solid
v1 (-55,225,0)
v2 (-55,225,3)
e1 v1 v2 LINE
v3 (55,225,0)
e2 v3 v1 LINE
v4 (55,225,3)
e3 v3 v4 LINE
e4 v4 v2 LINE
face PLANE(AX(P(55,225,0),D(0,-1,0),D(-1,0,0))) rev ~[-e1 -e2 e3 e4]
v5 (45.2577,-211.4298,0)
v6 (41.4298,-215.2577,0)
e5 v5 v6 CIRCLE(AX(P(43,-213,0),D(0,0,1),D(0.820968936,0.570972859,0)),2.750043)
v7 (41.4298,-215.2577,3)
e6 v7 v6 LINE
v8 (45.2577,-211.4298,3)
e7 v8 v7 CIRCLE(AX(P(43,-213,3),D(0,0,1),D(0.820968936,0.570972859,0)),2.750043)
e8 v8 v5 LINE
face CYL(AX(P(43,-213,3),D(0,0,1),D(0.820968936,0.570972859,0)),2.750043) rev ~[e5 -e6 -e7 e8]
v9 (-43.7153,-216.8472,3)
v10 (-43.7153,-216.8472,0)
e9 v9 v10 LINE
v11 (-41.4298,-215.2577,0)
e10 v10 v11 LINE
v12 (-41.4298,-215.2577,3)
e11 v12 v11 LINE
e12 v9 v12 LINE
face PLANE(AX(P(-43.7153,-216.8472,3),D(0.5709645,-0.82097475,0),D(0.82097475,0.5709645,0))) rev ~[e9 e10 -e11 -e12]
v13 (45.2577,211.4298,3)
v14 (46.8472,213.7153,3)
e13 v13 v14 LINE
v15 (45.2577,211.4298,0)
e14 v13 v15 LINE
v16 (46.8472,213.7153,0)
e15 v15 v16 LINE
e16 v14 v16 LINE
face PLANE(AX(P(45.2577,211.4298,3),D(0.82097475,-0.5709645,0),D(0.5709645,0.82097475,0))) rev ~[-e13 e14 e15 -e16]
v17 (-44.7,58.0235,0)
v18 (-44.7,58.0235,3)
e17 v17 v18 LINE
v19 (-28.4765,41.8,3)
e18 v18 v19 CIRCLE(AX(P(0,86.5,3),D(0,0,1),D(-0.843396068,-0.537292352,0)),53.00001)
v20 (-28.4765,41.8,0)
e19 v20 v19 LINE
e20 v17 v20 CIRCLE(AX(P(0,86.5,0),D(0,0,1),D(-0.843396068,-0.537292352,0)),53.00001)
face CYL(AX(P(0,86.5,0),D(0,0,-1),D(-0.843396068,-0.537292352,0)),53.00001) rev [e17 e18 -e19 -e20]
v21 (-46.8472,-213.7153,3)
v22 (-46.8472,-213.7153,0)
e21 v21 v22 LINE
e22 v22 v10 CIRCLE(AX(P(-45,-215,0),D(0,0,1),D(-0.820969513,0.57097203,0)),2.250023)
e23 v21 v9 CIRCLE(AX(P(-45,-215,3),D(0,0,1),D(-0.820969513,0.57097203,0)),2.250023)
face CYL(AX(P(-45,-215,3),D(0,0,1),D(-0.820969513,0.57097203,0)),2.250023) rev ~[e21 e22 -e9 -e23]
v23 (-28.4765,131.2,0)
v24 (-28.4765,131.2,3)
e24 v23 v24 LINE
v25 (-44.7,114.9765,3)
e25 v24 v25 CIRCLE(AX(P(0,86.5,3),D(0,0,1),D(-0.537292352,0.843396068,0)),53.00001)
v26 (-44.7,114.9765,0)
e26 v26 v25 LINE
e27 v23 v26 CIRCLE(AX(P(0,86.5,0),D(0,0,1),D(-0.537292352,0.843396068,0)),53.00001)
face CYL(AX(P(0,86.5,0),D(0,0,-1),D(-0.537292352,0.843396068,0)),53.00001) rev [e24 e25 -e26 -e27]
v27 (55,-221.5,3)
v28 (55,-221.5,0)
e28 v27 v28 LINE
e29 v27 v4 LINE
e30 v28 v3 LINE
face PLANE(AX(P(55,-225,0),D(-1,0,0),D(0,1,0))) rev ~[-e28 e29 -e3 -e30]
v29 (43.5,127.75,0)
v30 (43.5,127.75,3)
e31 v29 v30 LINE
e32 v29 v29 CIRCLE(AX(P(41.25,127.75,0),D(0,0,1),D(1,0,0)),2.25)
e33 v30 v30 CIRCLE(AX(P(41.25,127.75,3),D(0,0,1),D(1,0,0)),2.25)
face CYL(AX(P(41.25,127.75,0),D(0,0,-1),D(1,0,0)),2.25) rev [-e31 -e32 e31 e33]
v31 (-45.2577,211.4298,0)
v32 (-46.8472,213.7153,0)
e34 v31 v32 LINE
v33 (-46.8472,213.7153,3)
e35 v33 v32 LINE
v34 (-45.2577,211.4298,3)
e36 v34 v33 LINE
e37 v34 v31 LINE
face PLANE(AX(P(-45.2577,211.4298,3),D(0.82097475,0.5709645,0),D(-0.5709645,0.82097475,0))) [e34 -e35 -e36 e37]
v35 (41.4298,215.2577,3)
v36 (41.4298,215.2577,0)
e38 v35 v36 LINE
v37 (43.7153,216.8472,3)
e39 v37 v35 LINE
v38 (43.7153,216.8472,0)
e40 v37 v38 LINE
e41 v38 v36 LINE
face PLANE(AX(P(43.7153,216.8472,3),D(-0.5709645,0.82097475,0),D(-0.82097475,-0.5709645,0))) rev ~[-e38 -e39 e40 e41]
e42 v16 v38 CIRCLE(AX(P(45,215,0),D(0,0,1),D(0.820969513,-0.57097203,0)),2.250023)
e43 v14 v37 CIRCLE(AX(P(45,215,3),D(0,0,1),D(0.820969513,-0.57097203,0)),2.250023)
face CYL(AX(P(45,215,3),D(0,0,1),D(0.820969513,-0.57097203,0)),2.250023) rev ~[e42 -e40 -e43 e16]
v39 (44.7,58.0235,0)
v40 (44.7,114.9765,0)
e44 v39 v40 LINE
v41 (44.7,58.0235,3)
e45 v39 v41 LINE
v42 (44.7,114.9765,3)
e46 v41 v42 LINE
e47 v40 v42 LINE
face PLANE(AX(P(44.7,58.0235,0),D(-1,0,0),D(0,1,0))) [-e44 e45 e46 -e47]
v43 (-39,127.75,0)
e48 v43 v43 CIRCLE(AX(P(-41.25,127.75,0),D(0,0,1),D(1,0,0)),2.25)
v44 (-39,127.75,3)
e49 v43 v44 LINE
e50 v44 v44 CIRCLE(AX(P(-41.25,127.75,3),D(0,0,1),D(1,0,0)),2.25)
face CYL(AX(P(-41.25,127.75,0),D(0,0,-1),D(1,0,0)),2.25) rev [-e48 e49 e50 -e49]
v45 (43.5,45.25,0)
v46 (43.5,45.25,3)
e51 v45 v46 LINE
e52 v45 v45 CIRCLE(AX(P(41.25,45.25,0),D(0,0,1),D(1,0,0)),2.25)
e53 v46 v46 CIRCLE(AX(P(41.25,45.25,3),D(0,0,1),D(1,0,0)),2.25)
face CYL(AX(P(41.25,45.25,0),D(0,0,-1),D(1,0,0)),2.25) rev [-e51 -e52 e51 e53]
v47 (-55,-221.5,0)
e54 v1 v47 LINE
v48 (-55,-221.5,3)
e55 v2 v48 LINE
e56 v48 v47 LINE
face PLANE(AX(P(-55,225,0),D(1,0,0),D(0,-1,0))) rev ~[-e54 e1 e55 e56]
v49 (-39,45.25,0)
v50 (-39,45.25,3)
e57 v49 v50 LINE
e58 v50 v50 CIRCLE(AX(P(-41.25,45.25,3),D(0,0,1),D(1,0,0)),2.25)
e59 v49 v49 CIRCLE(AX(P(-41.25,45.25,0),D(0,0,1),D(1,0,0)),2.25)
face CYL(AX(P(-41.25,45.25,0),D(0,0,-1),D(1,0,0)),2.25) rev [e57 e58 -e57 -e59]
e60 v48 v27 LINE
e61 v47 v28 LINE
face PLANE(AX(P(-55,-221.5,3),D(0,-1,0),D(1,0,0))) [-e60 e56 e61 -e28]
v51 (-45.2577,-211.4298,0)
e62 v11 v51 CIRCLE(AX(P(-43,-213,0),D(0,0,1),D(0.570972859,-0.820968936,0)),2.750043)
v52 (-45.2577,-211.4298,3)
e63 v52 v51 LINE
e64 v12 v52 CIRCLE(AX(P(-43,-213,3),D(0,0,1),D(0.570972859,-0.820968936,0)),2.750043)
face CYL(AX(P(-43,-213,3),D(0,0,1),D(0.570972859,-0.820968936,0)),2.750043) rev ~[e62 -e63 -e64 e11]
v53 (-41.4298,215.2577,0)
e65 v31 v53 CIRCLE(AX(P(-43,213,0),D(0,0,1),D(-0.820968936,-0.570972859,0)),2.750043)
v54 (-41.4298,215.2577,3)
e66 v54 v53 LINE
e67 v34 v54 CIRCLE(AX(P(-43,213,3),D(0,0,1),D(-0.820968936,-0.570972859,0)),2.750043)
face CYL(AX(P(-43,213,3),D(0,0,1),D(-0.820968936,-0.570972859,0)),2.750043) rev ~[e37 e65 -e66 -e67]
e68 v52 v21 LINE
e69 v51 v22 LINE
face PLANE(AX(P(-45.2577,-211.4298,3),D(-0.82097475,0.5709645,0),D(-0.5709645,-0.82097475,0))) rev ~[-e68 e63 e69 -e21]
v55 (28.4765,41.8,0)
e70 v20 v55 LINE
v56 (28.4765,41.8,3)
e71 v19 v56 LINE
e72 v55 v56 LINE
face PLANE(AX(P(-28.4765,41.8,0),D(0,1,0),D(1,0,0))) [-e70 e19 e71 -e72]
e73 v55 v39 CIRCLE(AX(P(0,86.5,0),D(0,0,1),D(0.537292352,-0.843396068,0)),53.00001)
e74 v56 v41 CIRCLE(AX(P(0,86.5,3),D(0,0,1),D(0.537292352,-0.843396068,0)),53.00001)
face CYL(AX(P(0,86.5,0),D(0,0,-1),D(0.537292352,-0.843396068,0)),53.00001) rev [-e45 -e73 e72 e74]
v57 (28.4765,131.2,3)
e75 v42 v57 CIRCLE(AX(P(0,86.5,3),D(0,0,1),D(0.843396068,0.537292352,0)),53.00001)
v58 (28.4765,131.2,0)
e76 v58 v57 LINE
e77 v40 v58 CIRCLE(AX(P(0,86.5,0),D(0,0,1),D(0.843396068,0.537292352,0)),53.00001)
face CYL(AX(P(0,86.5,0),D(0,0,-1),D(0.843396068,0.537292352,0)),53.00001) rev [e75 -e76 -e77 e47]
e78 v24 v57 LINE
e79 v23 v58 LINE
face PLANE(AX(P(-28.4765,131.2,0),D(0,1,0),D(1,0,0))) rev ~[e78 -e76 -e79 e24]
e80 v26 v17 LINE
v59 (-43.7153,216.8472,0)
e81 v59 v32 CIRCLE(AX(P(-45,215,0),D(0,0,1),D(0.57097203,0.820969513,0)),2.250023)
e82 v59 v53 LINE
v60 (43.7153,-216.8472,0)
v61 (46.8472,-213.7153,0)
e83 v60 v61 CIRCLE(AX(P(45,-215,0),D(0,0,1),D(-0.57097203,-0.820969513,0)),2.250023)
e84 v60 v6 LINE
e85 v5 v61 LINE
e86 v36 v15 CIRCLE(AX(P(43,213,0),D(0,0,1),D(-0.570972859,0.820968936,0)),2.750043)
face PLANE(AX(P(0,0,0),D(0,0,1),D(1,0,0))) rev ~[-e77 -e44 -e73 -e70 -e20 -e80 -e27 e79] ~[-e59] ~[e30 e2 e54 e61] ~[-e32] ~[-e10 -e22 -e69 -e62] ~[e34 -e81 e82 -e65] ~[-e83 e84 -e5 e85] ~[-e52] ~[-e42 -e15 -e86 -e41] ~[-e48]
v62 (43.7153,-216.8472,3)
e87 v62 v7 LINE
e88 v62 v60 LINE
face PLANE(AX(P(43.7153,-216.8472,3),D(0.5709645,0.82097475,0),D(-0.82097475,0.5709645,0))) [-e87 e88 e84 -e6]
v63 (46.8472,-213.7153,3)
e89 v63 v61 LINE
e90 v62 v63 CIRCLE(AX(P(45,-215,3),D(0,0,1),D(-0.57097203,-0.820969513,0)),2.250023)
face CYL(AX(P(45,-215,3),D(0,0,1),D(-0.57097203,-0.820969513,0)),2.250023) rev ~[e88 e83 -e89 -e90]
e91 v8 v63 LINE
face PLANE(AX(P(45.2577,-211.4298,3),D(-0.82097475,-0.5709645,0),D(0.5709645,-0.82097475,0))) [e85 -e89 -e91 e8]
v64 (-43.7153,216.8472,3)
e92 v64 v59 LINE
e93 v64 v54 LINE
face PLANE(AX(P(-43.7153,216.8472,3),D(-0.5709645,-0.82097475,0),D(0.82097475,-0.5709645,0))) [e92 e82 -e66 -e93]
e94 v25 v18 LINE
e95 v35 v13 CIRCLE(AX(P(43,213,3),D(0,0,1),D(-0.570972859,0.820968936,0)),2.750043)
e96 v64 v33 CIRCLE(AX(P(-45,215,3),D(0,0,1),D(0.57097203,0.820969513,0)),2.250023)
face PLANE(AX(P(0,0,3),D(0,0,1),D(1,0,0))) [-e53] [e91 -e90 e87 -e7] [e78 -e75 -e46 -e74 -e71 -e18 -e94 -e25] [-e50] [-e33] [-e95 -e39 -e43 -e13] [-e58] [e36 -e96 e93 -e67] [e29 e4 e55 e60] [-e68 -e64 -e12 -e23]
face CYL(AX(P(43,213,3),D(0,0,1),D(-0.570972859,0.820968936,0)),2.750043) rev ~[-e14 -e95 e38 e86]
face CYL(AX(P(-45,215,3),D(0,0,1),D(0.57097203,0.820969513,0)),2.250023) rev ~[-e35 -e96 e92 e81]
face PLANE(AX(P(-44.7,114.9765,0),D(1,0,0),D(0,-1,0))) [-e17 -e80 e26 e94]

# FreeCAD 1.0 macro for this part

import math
import FreeCAD as App
import Part
import Sketcher

V = App.Vector

doc = App.newDocument("Part")
body = doc.addObject("PartDesign::Body", "Body")

# Sketch on XY plane
sketch1 = body.newObject("Sketcher::SketchObject", "Sketch")
sketch1.AttachmentSupport = (doc.getObject("XY_Plane"), [""])
sketch1.MapMode = "FlatFace"
sketch1.addGeometry(Part.LineSegment(V(-55, 225, 0), V(-55, -225, 0)), False)
sketch1.addGeometry(Part.LineSegment(V(-55, -225, 0), V(55, -225, 0)), False)
sketch1.addGeometry(Part.LineSegment(V(55, -225, 0), V(55, 225, 0)), False)
sketch1.addGeometry(Part.LineSegment(V(55, 225, 0), V(-55, 225, 0)), False)
sketch1.addGeometry(Part.Circle(V(-45, -215, 0), V(0, 0, 1), 2.25), False)
sketch1.addGeometry(Part.Circle(V(45, -215, 0), V(0, 0, 1), 2.25), False)
sketch1.addGeometry(Part.Circle(V(-41.25, 45.25, 0), V(0, 0, 1), 2.25), False)
sketch1.addGeometry(Part.Circle(V(-41.25, 127.75, 0), V(0, 0, 1), 2.25), False)
sketch1.addGeometry(Part.Circle(V(-45, 215, 0), V(0, 0, 1), 2.25), False)
sketch1.addGeometry(Part.ArcOfCircle(Part.Circle(V(0, 86.5, 0), V(0, 0, 1), 53.00001), math.radians(122.499507), math.radians(147.500493)), False)
sketch1.addGeometry(Part.LineSegment(V(-28.4765, 131.2, 0), V(28.4765, 131.2, 0)), False)
sketch1.addGeometry(Part.ArcOfCircle(Part.Circle(V(0, 86.5, 0), V(0, 0, 1), 53.00001), math.radians(32.499507), math.radians(57.500493)), False)
sketch1.addGeometry(Part.LineSegment(V(44.7, 114.9765, 0), V(44.7, 58.0235, 0)), False)
sketch1.addGeometry(Part.ArcOfCircle(Part.Circle(V(0, 86.5, 0), V(0, 0, 1), 53.00001), math.radians(-57.500493), math.radians(-32.499507)), False)
sketch1.addGeometry(Part.LineSegment(V(28.4765, 41.8, 0), V(-28.4765, 41.8, 0)), False)
sketch1.addGeometry(Part.ArcOfCircle(Part.Circle(V(0, 86.5, 0), V(0, 0, 1), 53.00001), math.radians(-147.500493), math.radians(-122.499507)), False)
sketch1.addGeometry(Part.LineSegment(V(-44.7, 58.0235, 0), V(-44.7, 114.9765, 0)), False)
sketch1.addGeometry(Part.Circle(V(41.25, 45.25, 0), V(0, 0, 1), 2.25), False)
sketch1.addGeometry(Part.Circle(V(41.25, 127.75, 0), V(0, 0, 1), 2.25), False)
sketch1.addGeometry(Part.Circle(V(45, 215, 0), V(0, 0, 1), 2.25), False)
sketch1.addConstraint(Sketcher.Constraint("Coincident", 0, 2, 1, 1))
sketch1.addConstraint(Sketcher.Constraint("Coincident", 1, 2, 2, 1))
sketch1.addConstraint(Sketcher.Constraint("Coincident", 2, 2, 3, 1))
sketch1.addConstraint(Sketcher.Constraint("Coincident", 3, 2, 0, 1))
sketch1.addConstraint(Sketcher.Constraint("Coincident", 9, 1, 10, 1))
sketch1.addConstraint(Sketcher.Constraint("Coincident", 10, 2, 11, 2))
sketch1.addConstraint(Sketcher.Constraint("Coincident", 11, 1, 12, 1))
sketch1.addConstraint(Sketcher.Constraint("Coincident", 12, 2, 13, 2))
sketch1.addConstraint(Sketcher.Constraint("Coincident", 13, 1, 14, 1))
sketch1.addConstraint(Sketcher.Constraint("Coincident", 14, 2, 15, 2))
sketch1.addConstraint(Sketcher.Constraint("Coincident", 15, 1, 16, 1))
sketch1.addConstraint(Sketcher.Constraint("Coincident", 16, 2, 9, 2))
sketch1.addConstraint(Sketcher.Constraint("Vertical", 0))
sketch1.addConstraint(Sketcher.Constraint("Horizontal", 1))
sketch1.addConstraint(Sketcher.Constraint("Vertical", 2))
sketch1.addConstraint(Sketcher.Constraint("Horizontal", 3))
sketch1.addConstraint(Sketcher.Constraint("Horizontal", 10))
sketch1.addConstraint(Sketcher.Constraint("Vertical", 12))
sketch1.addConstraint(Sketcher.Constraint("Horizontal", 14))
sketch1.addConstraint(Sketcher.Constraint("Vertical", 16))
sketch1.addConstraint(Sketcher.Constraint("Coincident", 11, 3, 9, 3))
sketch1.addConstraint(Sketcher.Constraint("Coincident", 13, 3, 9, 3))
sketch1.addConstraint(Sketcher.Constraint("Coincident", 15, 3, 9, 3))
sketch1.addConstraint(Sketcher.Constraint("Equal", 4, 5))
sketch1.addConstraint(Sketcher.Constraint("Equal", 5, 6))
sketch1.addConstraint(Sketcher.Constraint("Equal", 6, 7))
sketch1.addConstraint(Sketcher.Constraint("Equal", 7, 8))
sketch1.addConstraint(Sketcher.Constraint("Equal", 9, 11))
sketch1.addConstraint(Sketcher.Constraint("Equal", 11, 13))
sketch1.addConstraint(Sketcher.Constraint("Equal", 13, 15))
sketch1.addConstraint(Sketcher.Constraint("Equal", 8, 17))
sketch1.addConstraint(Sketcher.Constraint("Equal", 17, 18))
sketch1.addConstraint(Sketcher.Constraint("Equal", 18, 19))
sketch1.addConstraint(Sketcher.Constraint("Symmetric", 5, 3, 8, 3, -1, 1))
sketch1.addConstraint(Sketcher.Constraint("Symmetric", 4, 3, 19, 3, -1, 1))
sketch1.addConstraint(Sketcher.Constraint("Symmetric", 0, 2, 2, 2, -1, 1))
sketch1.addConstraint(Sketcher.Constraint("Symmetric", 4, 3, 5, 3, -2))
sketch1.addConstraint(Sketcher.Constraint("Symmetric", 6, 3, 17, 3, -2))
sketch1.addConstraint(Sketcher.Constraint("Symmetric", 7, 3, 18, 3, -2))
sketch1.addConstraint(Sketcher.Constraint("Symmetric", 12, 2, 15, 1, -2))
sketch1.addConstraint(Sketcher.Constraint("Vertical", 6, 3, 7, 3))
sketch1.addConstraint(Sketcher.Constraint("Vertical", 10, 2, 13, 1))
sketch1.addConstraint(Sketcher.Constraint("Equal", 14, 12))
sketch1.addConstraint(Sketcher.Constraint("Radius", 9, 53.0))
sketch1.addConstraint(Sketcher.Constraint("Diameter", 4, 4.5))
sketch1.addConstraint(Sketcher.Constraint("DistanceX", 1, 1, 1, 2, 110.0))
sketch1.addConstraint(Sketcher.Constraint("DistanceY", 0, 2, 0, 1, 450.0))
sketch1.addConstraint(Sketcher.Constraint("DistanceX", 0, 2, 4, 3, 10.0))
sketch1.addConstraint(Sketcher.Constraint("DistanceY", 0, 2, 4, 3, 10.0))
sketch1.addConstraint(Sketcher.Constraint("DistanceY", 6, 3, 7, 3, 82.5))
sketch1.addConstraint(Sketcher.Constraint("DistanceX", 6, 3, 17, 3, 82.5))
sketch1.addConstraint(Sketcher.Constraint("DistanceY", -1, 1, 9, 3, 86.5))
sketch1.addConstraint(Sketcher.Constraint("DistanceY", -1, 1, 9, 1, 131.2))
sketch1.addConstraint(Sketcher.Constraint("DistanceY", -1, 1, 6, 3, 45.25))
pad1 = body.newObject("PartDesign::Pad", "Pad")
pad1.Profile = sketch1
pad1.Length = 3

# Sketch on XY plane
sketch2 = body.newObject("Sketcher::SketchObject", "Sketch001")
sketch2.AttachmentSupport = (doc.getObject("XY_Plane"), [""])
sketch2.MapMode = "FlatFace"
sketch2.AttachmentOffset = App.Placement(V(0, 0, 3), App.Rotation())
sketch2.addGeometry(Part.LineSegment(V(-41.4298, 215.2577, 0), V(-43.7153, 216.8472, 0)), False)
sketch2.addGeometry(Part.ArcOfCircle(Part.Circle(V(-45, 215, 0), V(0, 0, 1), 2.250023), math.radians(55.181964), math.radians(214.818036)), False)
sketch2.addGeometry(Part.LineSegment(V(-46.8472, 213.7153, 0), V(-45.2577, 211.4298, 0)), False)
sketch2.addGeometry(Part.ArcOfCircle(Part.Circle(V(-43, 213, 0), V(0, 0, 1), 2.750043), math.radians(-145.181906), math.radians(55.181906)), False)
sketch2.addGeometry(Part.ArcOfCircle(Part.Circle(V(45, 215, 0), V(0, 0, 1), 2.250023), math.radians(-34.818036), math.radians(124.818036)), False)
sketch2.addGeometry(Part.LineSegment(V(43.7153, 216.8472, 0), V(41.4298, 215.2577, 0)), False)
sketch2.addGeometry(Part.ArcOfCircle(Part.Circle(V(43, 213, 0), V(0, 0, 1), 2.750043), math.radians(124.818094), math.radians(325.181906)), False)
sketch2.addGeometry(Part.LineSegment(V(45.2577, 211.4298, 0), V(46.8472, 213.7153, 0)), False)
sketch2.addGeometry(Part.ArcOfCircle(Part.Circle(V(-45, -215, 0), V(0, 0, 1), 2.250023), math.radians(145.181964), math.radians(304.818036)), False)
sketch2.addGeometry(Part.LineSegment(V(-43.7153, -216.8472, 0), V(-41.4298, -215.2577, 0)), False)
sketch2.addGeometry(Part.ArcOfCircle(Part.Circle(V(-43, -213, 0), V(0, 0, 1), 2.750043), math.radians(-55.181906), math.radians(145.181906)), False)
sketch2.addGeometry(Part.LineSegment(V(-45.2577, -211.4298, 0), V(-46.8472, -213.7153, 0)), False)
sketch2.addGeometry(Part.LineSegment(V(46.8472, -213.7153, 0), V(45.2577, -211.4298, 0)), False)
sketch2.addGeometry(Part.ArcOfCircle(Part.Circle(V(43, -213, 0), V(0, 0, 1), 2.750043), math.radians(34.818094), math.radians(235.181906)), False)
sketch2.addGeometry(Part.LineSegment(V(41.4298, -215.2577, 0), V(43.7153, -216.8472, 0)), False)
sketch2.addGeometry(Part.ArcOfCircle(Part.Circle(V(45, -215, 0), V(0, 0, 1), 2.250023), math.radians(-124.818036), math.radians(34.818036)), False)
sketch2.addConstraint(Sketcher.Constraint("Tangent", 0, 2, 1, 1))
sketch2.addConstraint(Sketcher.Constraint("Tangent", 1, 2, 2, 1))
sketch2.addConstraint(Sketcher.Constraint("Tangent", 2, 2, 3, 1))
sketch2.addConstraint(Sketcher.Constraint("Tangent", 3, 2, 0, 1))
sketch2.addConstraint(Sketcher.Constraint("Tangent", 4, 2, 5, 1))
sketch2.addConstraint(Sketcher.Constraint("Tangent", 5, 2, 6, 1))
sketch2.addConstraint(Sketcher.Constraint("Tangent", 6, 2, 7, 1))
sketch2.addConstraint(Sketcher.Constraint("Tangent", 7, 2, 4, 1))
sketch2.addConstraint(Sketcher.Constraint("Tangent", 8, 2, 9, 1))
sketch2.addConstraint(Sketcher.Constraint("Tangent", 9, 2, 10, 1))
sketch2.addConstraint(Sketcher.Constraint("Tangent", 10, 2, 11, 1))
sketch2.addConstraint(Sketcher.Constraint("Tangent", 11, 2, 8, 1))
sketch2.addConstraint(Sketcher.Constraint("Tangent", 12, 2, 13, 1))
sketch2.addConstraint(Sketcher.Constraint("Tangent", 13, 2, 14, 1))
sketch2.addConstraint(Sketcher.Constraint("Tangent", 14, 2, 15, 1))
sketch2.addConstraint(Sketcher.Constraint("Tangent", 15, 2, 12, 1))
sketch2.addConstraint(Sketcher.Constraint("Equal", 1, 4))
sketch2.addConstraint(Sketcher.Constraint("Equal", 3, 6))
sketch2.addConstraint(Sketcher.Constraint("Equal", 4, 8))
sketch2.addConstraint(Sketcher.Constraint("Equal", 6, 10))
sketch2.addConstraint(Sketcher.Constraint("Equal", 10, 13))
sketch2.addConstraint(Sketcher.Constraint("Equal", 8, 15))
sketch2.addConstraint(Sketcher.Constraint("Symmetric", 4, 3, 8, 3, -1, 1))
sketch2.addConstraint(Sketcher.Constraint("Symmetric", 6, 3, 10, 3, -1, 1))
sketch2.addConstraint(Sketcher.Constraint("Symmetric", 3, 3, 13, 3, -1, 1))
sketch2.addConstraint(Sketcher.Constraint("Symmetric", 1, 3, 15, 3, -1, 1))
sketch2.addConstraint(Sketcher.Constraint("Symmetric", 1, 3, 4, 3, -2))
sketch2.addConstraint(Sketcher.Constraint("Symmetric", 3, 3, 6, 3, -2))
sketch2.addConstraint(Sketcher.Constraint("Perpendicular", 2, 5))
sketch2.addConstraint(Sketcher.Constraint("Radius", 3, 2.75))
sketch2.addConstraint(Sketcher.Constraint("Radius", 1, 2.25))
sketch2.addConstraint(Sketcher.Constraint("DistanceX", 1, 3, -1, 1, 45.0))
sketch2.addConstraint(Sketcher.Constraint("DistanceY", -1, 1, 1, 3, 215.0))
sketch2.addConstraint(Sketcher.Constraint("DistanceX", 3, 3, -1, 1, 43.0))
pocket1 = body.newObject("PartDesign::Pocket", "Pocket")
pocket1.Profile = sketch2
pocket1.Type = "ThroughAll"

# Sketch on XY plane
sketch3 = body.newObject("Sketcher::SketchObject", "Sketch002")
sketch3.AttachmentSupport = (doc.getObject("XY_Plane"), [""])
sketch3.MapMode = "FlatFace"
sketch3.AttachmentOffset = App.Placement(V(0, 0, 3), App.Rotation())
sketch3.addGeometry(Part.LineSegment(V(55, -221.5, 0), V(-55, -221.5, 0)), False)
sketch3.addGeometry(Part.LineSegment(V(-55, -221.5, 0), V(-55, -225, 0)), False)
sketch3.addGeometry(Part.LineSegment(V(-55, -225, 0), V(55, -225, 0)), False)
sketch3.addGeometry(Part.LineSegment(V(55, -225, 0), V(55, -221.5, 0)), False)
sketch3.addConstraint(Sketcher.Constraint("Coincident", 0, 2, 1, 1))
sketch3.addConstraint(Sketcher.Constraint("Coincident", 1, 2, 2, 1))
sketch3.addConstraint(Sketcher.Constraint("Coincident", 2, 2, 3, 1))
sketch3.addConstraint(Sketcher.Constraint("Coincident", 3, 2, 0, 1))
sketch3.addConstraint(Sketcher.Constraint("Horizontal", 0))
sketch3.addConstraint(Sketcher.Constraint("Vertical", 1))
sketch3.addConstraint(Sketcher.Constraint("Horizontal", 2))
sketch3.addConstraint(Sketcher.Constraint("Vertical", 3))
sketch3.addConstraint(Sketcher.Constraint("DistanceX", 0, 2, 0, 1, 110.0))
sketch3.addConstraint(Sketcher.Constraint("DistanceY", 1, 2, 1, 1, 3.5))
sketch3.addConstraint(Sketcher.Constraint("DistanceX", 0, 2, -1, 1, 55.0))
sketch3.addConstraint(Sketcher.Constraint("DistanceY", 1, 2, -1, 1, 225.0))
pocket2 = body.newObject("PartDesign::Pocket", "Pocket001")
pocket2.Profile = sketch3
pocket2.Type = "ThroughAll"

doc.recompute()
